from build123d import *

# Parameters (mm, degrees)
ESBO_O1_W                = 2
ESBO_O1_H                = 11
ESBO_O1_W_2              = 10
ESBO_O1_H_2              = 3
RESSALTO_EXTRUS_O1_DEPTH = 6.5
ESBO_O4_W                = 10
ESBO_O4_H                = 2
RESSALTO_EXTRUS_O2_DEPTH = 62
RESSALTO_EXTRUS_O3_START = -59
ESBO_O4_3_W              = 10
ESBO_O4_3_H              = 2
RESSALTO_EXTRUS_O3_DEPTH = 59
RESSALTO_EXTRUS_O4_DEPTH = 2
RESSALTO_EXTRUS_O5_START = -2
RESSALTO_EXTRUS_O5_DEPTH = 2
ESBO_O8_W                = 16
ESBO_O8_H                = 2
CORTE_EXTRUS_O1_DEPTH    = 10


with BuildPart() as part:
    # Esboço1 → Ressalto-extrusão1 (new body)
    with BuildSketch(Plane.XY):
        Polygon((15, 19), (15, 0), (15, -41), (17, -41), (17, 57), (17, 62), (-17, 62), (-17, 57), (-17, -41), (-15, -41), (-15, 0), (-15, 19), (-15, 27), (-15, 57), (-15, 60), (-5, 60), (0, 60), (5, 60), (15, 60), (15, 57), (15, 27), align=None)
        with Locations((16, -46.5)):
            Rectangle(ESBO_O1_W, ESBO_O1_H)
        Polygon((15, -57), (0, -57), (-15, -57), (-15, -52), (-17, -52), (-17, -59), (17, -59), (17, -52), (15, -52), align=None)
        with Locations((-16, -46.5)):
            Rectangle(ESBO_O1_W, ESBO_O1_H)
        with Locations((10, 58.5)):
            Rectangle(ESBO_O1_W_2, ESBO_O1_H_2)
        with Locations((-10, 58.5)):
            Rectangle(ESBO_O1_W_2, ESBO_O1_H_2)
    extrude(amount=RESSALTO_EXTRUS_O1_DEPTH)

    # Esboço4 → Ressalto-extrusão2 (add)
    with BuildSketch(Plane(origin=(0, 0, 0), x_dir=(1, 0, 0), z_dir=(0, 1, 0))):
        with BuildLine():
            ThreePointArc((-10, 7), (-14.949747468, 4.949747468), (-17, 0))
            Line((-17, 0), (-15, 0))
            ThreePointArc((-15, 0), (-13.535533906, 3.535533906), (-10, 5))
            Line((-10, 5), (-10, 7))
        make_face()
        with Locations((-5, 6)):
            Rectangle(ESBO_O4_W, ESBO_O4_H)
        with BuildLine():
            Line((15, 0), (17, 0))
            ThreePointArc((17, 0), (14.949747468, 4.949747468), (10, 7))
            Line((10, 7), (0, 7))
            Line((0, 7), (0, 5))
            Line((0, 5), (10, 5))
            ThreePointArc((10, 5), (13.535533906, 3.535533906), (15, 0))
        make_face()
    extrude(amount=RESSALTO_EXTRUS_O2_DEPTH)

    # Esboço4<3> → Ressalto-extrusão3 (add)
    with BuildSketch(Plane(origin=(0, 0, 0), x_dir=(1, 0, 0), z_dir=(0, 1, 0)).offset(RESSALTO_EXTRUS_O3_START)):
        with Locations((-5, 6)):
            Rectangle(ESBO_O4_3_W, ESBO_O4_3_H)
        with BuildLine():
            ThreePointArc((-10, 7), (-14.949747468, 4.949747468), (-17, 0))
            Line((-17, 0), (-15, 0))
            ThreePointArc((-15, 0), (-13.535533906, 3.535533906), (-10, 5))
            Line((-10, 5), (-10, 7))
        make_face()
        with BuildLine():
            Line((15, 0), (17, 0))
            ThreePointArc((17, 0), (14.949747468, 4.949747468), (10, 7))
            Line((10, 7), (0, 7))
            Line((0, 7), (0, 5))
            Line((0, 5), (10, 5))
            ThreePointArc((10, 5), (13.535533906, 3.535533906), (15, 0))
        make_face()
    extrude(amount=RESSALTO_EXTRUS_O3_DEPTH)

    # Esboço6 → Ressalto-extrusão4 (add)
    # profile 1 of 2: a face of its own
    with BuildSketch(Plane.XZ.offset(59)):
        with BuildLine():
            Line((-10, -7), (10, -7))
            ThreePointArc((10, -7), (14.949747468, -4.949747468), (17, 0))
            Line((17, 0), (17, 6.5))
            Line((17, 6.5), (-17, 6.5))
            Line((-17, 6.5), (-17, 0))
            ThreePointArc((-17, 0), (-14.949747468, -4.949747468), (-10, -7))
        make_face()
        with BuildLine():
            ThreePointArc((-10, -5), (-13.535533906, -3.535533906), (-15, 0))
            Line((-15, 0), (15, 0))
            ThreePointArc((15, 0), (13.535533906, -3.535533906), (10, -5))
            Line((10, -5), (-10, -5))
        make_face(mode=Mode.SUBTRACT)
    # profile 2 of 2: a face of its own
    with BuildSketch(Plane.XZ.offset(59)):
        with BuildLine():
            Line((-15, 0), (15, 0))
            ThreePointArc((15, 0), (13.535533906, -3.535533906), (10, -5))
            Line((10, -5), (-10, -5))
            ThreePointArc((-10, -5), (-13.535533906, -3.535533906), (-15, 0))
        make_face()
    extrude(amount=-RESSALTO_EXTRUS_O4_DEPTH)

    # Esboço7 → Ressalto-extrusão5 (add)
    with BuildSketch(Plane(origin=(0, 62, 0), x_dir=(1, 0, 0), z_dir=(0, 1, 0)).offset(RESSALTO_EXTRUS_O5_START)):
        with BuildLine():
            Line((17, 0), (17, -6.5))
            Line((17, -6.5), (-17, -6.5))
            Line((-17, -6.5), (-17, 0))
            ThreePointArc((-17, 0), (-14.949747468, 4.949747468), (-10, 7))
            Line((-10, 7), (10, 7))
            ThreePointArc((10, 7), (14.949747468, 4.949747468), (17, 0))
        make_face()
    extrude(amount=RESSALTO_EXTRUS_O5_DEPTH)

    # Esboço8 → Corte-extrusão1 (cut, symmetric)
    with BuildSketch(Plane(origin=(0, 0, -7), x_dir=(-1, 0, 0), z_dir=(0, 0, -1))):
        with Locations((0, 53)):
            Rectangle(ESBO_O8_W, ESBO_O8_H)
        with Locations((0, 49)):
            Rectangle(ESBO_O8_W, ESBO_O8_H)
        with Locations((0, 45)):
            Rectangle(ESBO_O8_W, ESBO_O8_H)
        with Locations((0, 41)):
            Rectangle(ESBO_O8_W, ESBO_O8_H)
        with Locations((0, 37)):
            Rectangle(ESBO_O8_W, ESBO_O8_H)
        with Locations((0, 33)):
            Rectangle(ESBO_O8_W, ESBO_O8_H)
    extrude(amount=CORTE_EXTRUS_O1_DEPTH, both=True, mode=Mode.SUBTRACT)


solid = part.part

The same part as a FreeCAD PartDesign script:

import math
import FreeCAD as App
import Part
import Sketcher

V = App.Vector
Q = App.Units.Quantity

doc = App.newDocument("Part")
body = doc.addObject("PartDesign::Body", "Body")

# Sketch on XY plane
sketch1 = body.newObject("Sketcher::SketchObject", "Sketch")
sketch1.AttachmentSupport = (doc.getObject("XY_Plane"), [""])
sketch1.MapMode = "FlatFace"
sketch1.addGeometry(Part.LineSegment(V(17, 62, 0), V(-17, 62, 0)), False)
sketch1.addGeometry(Part.LineSegment(V(-17, 62, 0), V(-17, -59, 0)), False)
sketch1.addGeometry(Part.LineSegment(V(-17, -59, 0), V(17, -59, 0)), False)
sketch1.addGeometry(Part.LineSegment(V(17, -59, 0), V(17, 62, 0)), False)
sketch1.addGeometry(Part.LineSegment(V(-5, 60, 0), V(5, 60, 0)), False)
sketch1.addGeometry(Part.LineSegment(V(5, 60, 0), V(5, 57, 0)), False)
sketch1.addGeometry(Part.LineSegment(V(5, 57, 0), V(15, 57, 0)), False)
sketch1.addGeometry(Part.LineSegment(V(15, 57, 0), V(15, -57, 0)), False)
sketch1.addGeometry(Part.LineSegment(V(15, -57, 0), V(-15, -57, 0)), False)
sketch1.addGeometry(Part.LineSegment(V(-15, -57, 0), V(-15, 57, 0)), False)
sketch1.addGeometry(Part.LineSegment(V(-15, 57, 0), V(-5, 57, 0)), False)
sketch1.addGeometry(Part.LineSegment(V(-5, 57, 0), V(-5, 60, 0)), False)
sketch1.addConstraint(Sketcher.Constraint("Coincident", 0, 2, 1, 1))
sketch1.addConstraint(Sketcher.Constraint("Coincident", 1, 2, 2, 1))
sketch1.addConstraint(Sketcher.Constraint("Coincident", 2, 2, 3, 1))
sketch1.addConstraint(Sketcher.Constraint("Coincident", 3, 2, 0, 1))
sketch1.addConstraint(Sketcher.Constraint("Coincident", 4, 2, 5, 1))
sketch1.addConstraint(Sketcher.Constraint("Coincident", 5, 2, 6, 1))
sketch1.addConstraint(Sketcher.Constraint("Coincident", 6, 2, 7, 1))
sketch1.addConstraint(Sketcher.Constraint("Coincident", 7, 2, 8, 1))
sketch1.addConstraint(Sketcher.Constraint("Coincident", 8, 2, 9, 1))
sketch1.addConstraint(Sketcher.Constraint("Coincident", 9, 2, 10, 1))
sketch1.addConstraint(Sketcher.Constraint("Coincident", 10, 2, 11, 1))
sketch1.addConstraint(Sketcher.Constraint("Coincident", 11, 2, 4, 1))
sketch1.addConstraint(Sketcher.Constraint("Horizontal", 0))
sketch1.addConstraint(Sketcher.Constraint("Vertical", 1))
sketch1.addConstraint(Sketcher.Constraint("Horizontal", 2))
sketch1.addConstraint(Sketcher.Constraint("Vertical", 3))
sketch1.addConstraint(Sketcher.Constraint("Horizontal", 4))
sketch1.addConstraint(Sketcher.Constraint("Vertical", 5))
sketch1.addConstraint(Sketcher.Constraint("Horizontal", 6))
sketch1.addConstraint(Sketcher.Constraint("Vertical", 7))
sketch1.addConstraint(Sketcher.Constraint("Horizontal", 8))
sketch1.addConstraint(Sketcher.Constraint("Vertical", 9))
sketch1.addConstraint(Sketcher.Constraint("Horizontal", 10))
sketch1.addConstraint(Sketcher.Constraint("Vertical", 11))
sketch1.addConstraint(Sketcher.Constraint("Symmetric", 6, 2, 8, 2, -1, 1))
sketch1.addConstraint(Sketcher.Constraint("Symmetric", 5, 2, 10, 2, -2))
sketch1.addConstraint(Sketcher.Constraint("Equal", 4, 6))
sketch1.addConstraint(Sketcher.Constraint("DistanceX", 0, 2, 0, 1, Q("34 mm")))
sketch1.addConstraint(Sketcher.Constraint("DistanceX", 4, 1, 4, 2, Q("10 mm")))
sketch1.addConstraint(Sketcher.Constraint("DistanceY", 1, 2, 1, 1, Q("121 mm")))
sketch1.addConstraint(Sketcher.Constraint("DistanceY", 5, 2, 5, 1, Q("3 mm")))
sketch1.addConstraint(Sketcher.Constraint("DistanceY", 7, 2, 7, 1, Q("114 mm")))
sketch1.addConstraint(Sketcher.Constraint("DistanceX", 0, 2, -1, 1, Q("17 mm")))
sketch1.addConstraint(Sketcher.Constraint("DistanceY", -1, 1, 0, 2, Q("62 mm")))
pad1 = body.newObject("PartDesign::Pad", "Pad")
pad1.Profile = sketch1
pad1.Length = 6.5

# Sketch on XZ plane
sketch2 = body.newObject("Sketcher::SketchObject", "Sketch001")
sketch2.AttachmentSupport = (doc.getObject("XZ_Plane"), [""])
sketch2.MapMode = "FlatFace"
sketch2.addGeometry(Part.ArcOfCircle(Part.Circle(V(-10, 0, 0), V(0, 0, 1), 7), math.radians(-180), math.radians(-90)), False)
sketch2.addGeometry(Part.LineSegment(V(-17, 0, 0), V(-15, 0, 0)), False)
sketch2.addGeometry(Part.ArcOfCircle(Part.Circle(V(-10, 0, 0), V(0, 0, 1), 5), math.radians(180), math.radians(270)), False)
sketch2.addGeometry(Part.LineSegment(V(-10, -5, 0), V(10, -5, 0)), False)
sketch2.addGeometry(Part.ArcOfCircle(Part.Circle(V(10, 0, 0), V(0, 0, 1), 5), math.radians(-90), math.radians(0)), False)
sketch2.addGeometry(Part.LineSegment(V(15, 0, 0), V(17, 0, 0)), False)
sketch2.addGeometry(Part.ArcOfCircle(Part.Circle(V(10, 0, 0), V(0, 0, 1), 7), math.radians(-90), math.radians(0)), False)
sketch2.addGeometry(Part.LineSegment(V(10, -7, 0), V(-10, -7, 0)), False)
sketch2.addConstraint(Sketcher.Constraint("Coincident", 0, 1, 1, 1))
sketch2.addConstraint(Sketcher.Constraint("Coincident", 1, 2, 2, 1))
sketch2.addConstraint(Sketcher.Constraint("Tangent", 2, 2, 3, 1))
sketch2.addConstraint(Sketcher.Constraint("Tangent", 3, 2, 4, 1))
sketch2.addConstraint(Sketcher.Constraint("Coincident", 4, 2, 5, 1))
sketch2.addConstraint(Sketcher.Constraint("Coincident", 5, 2, 6, 2))
sketch2.addConstraint(Sketcher.Constraint("Tangent", 6, 1, 7, 1))
sketch2.addConstraint(Sketcher.Constraint("Tangent", 7, 2, 0, 2))
sketch2.addConstraint(Sketcher.Constraint("Horizontal", 1))
sketch2.addConstraint(Sketcher.Constraint("Horizontal", 3))
sketch2.addConstraint(Sketcher.Constraint("Horizontal", 5))
sketch2.addConstraint(Sketcher.Constraint("Horizontal", 7))
sketch2.addConstraint(Sketcher.Constraint("Coincident", 2, 3, 0, 3))
sketch2.addConstraint(Sketcher.Constraint("Coincident", 6, 3, 4, 3))
sketch2.addConstraint(Sketcher.Constraint("Equal", 2, 4))
sketch2.addConstraint(Sketcher.Constraint("Symmetric", 0, 3, 4, 3, -1, 1))
sketch2.addConstraint(Sketcher.Constraint("PointOnObject", 0, 1, -1))
sketch2.addConstraint(Sketcher.Constraint("PointOnObject", 4, 2, -1))
sketch2.addConstraint(Sketcher.Constraint("Radius", 0, Q("7 mm")))
sketch2.addConstraint(Sketcher.Constraint("Radius", 2, Q("5 mm")))
sketch2.addConstraint(Sketcher.Constraint("DistanceX", 3, 1, 3, 2, Q("20 mm")))
pad2 = body.newObject("PartDesign::Pad", "Pad001")
pad2.Profile = sketch2
pad2.Length = 62
pad2.Reversed = True

# Sketch on XZ plane
sketch3 = body.newObject("Sketcher::SketchObject", "Sketch002")
sketch3.AttachmentSupport = (doc.getObject("XZ_Plane"), [""])
sketch3.MapMode = "FlatFace"
sketch3.AttachmentOffset = App.Placement(V(0, 0, 59), App.Rotation())
sketch3.addGeometry(Part.LineSegment(V(-10, -5, 0), V(10, -5, 0)), False)
sketch3.addGeometry(Part.ArcOfCircle(Part.Circle(V(10, 0, 0), V(0, 0, 1), 5), math.radians(-90), math.radians(0)), False)
sketch3.addGeometry(Part.LineSegment(V(15, 0, 0), V(17, 0, 0)), False)
sketch3.addGeometry(Part.ArcOfCircle(Part.Circle(V(10, 0, 0), V(0, 0, 1), 7), math.radians(-90), math.radians(0)), False)
sketch3.addGeometry(Part.LineSegment(V(10, -7, 0), V(-10, -7, 0)), False)
sketch3.addGeometry(Part.ArcOfCircle(Part.Circle(V(-10, 0, 0), V(0, 0, 1), 7), math.radians(-180), math.radians(-90)), False)
sketch3.addGeometry(Part.LineSegment(V(-17, 0, 0), V(-15, 0, 0)), False)
sketch3.addGeometry(Part.ArcOfCircle(Part.Circle(V(-10, 0, 0), V(0, 0, 1), 5), math.radians(180), math.radians(270)), False)
sketch3.addConstraint(Sketcher.Constraint("Tangent", 0, 2, 1, 1))
sketch3.addConstraint(Sketcher.Constraint("Coincident", 1, 2, 2, 1))
sketch3.addConstraint(Sketcher.Constraint("Coincident", 2, 2, 3, 2))
sketch3.addConstraint(Sketcher.Constraint("Tangent", 3, 1, 4, 1))
sketch3.addConstraint(Sketcher.Constraint("Tangent", 4, 2, 5, 2))
sketch3.addConstraint(Sketcher.Constraint("Coincident", 5, 1, 6, 1))
sketch3.addConstraint(Sketcher.Constraint("Coincident", 6, 2, 7, 1))
sketch3.addConstraint(Sketcher.Constraint("Tangent", 7, 2, 0, 1))
sketch3.addConstraint(Sketcher.Constraint("Horizontal", 0))
sketch3.addConstraint(Sketcher.Constraint("Horizontal", 2))
sketch3.addConstraint(Sketcher.Constraint("Horizontal", 4))
sketch3.addConstraint(Sketcher.Constraint("Horizontal", 6))
sketch3.addConstraint(Sketcher.Constraint("Coincident", 3, 3, 1, 3))
sketch3.addConstraint(Sketcher.Constraint("Coincident", 7, 3, 5, 3))
sketch3.addConstraint(Sketcher.Constraint("Equal", 3, 5))
sketch3.addConstraint(Sketcher.Constraint("Symmetric", 1, 3, 5, 3, -1, 1))
sketch3.addConstraint(Sketcher.Constraint("PointOnObject", 1, 2, -1))
sketch3.addConstraint(Sketcher.Constraint("PointOnObject", 5, 1, -1))
sketch3.addConstraint(Sketcher.Constraint("Radius", 1, Q("5 mm")))
sketch3.addConstraint(Sketcher.Constraint("Radius", 3, Q("7 mm")))
sketch3.addConstraint(Sketcher.Constraint("DistanceX", 0, 1, 0, 2, Q("20 mm")))
pad3 = body.newObject("PartDesign::Pad", "Pad002")
pad3.Profile = sketch3
pad3.Length = 59
pad3.Reversed = True

# Sketch on XZ plane
sketch4 = body.newObject("Sketcher::SketchObject", "Sketch003")
sketch4.AttachmentSupport = (doc.getObject("XZ_Plane"), [""])
sketch4.MapMode = "FlatFace"
sketch4.AttachmentOffset = App.Placement(V(0, 0, 59), App.Rotation())
sketch4.addGeometry(Part.LineSegment(V(-10, -7, 0), V(10, -7, 0)), False)
sketch4.addGeometry(Part.ArcOfCircle(Part.Circle(V(10, 0, 0), V(0, 0, 1), 7), math.radians(-90), math.radians(0)), False)
sketch4.addGeometry(Part.LineSegment(V(17, 0, 0), V(17, 6, 0)), False)
sketch4.addGeometry(Part.LineSegment(V(17, 6, 0), V(-17, 6, 0)), False)
sketch4.addGeometry(Part.LineSegment(V(-17, 6, 0), V(-17, 0, 0)), False)
sketch4.addGeometry(Part.ArcOfCircle(Part.Circle(V(-10, 0, 0), V(0, 0, 1), 7), math.radians(-180), math.radians(-90)), False)
sketch4.addConstraint(Sketcher.Constraint("Tangent", 0, 2, 1, 1))
sketch4.addConstraint(Sketcher.Constraint("Tangent", 1, 2, 2, 1))
sketch4.addConstraint(Sketcher.Constraint("Coincident", 2, 2, 3, 1))
sketch4.addConstraint(Sketcher.Constraint("Coincident", 3, 2, 4, 1))
sketch4.addConstraint(Sketcher.Constraint("Tangent", 4, 2, 5, 1))
sketch4.addConstraint(Sketcher.Constraint("Tangent", 5, 2, 0, 1))
sketch4.addConstraint(Sketcher.Constraint("Horizontal", 0))
sketch4.addConstraint(Sketcher.Constraint("Vertical", 2))
sketch4.addConstraint(Sketcher.Constraint("Horizontal", 3))
sketch4.addConstraint(Sketcher.Constraint("Vertical", 4))
sketch4.addConstraint(Sketcher.Constraint("Equal", 1, 5))
sketch4.addConstraint(Sketcher.Constraint("Symmetric", 1, 3, 5, 3, -1, 1))
sketch4.addConstraint(Sketcher.Constraint("Radius", 1, Q("7 mm")))
sketch4.addConstraint(Sketcher.Constraint("DistanceX", 0, 1, 0, 2, Q("20 mm")))
sketch4.addConstraint(Sketcher.Constraint("DistanceY", 2, 1, 2, 2, Q("6.5 mm")))
pad4 = body.newObject("PartDesign::Pad", "Pad003")
pad4.Profile = sketch4
pad4.Length = 2
pad4.Reversed = True

# Sketch on XZ plane
sketch5 = body.newObject("Sketcher::SketchObject", "Sketch004")
sketch5.AttachmentSupport = (doc.getObject("XZ_Plane"), [""])
sketch5.MapMode = "FlatFace"
sketch5.AttachmentOffset = App.Placement(V(0, 0, -60), App.Rotation())
sketch5.addGeometry(Part.LineSegment(V(17, 6, 0), V(17, 0, 0)), False)
sketch5.addGeometry(Part.ArcOfCircle(Part.Circle(V(10, 0, 0), V(0, 0, 1), 7), math.radians(-90), math.radians(0)), False)
sketch5.addGeometry(Part.LineSegment(V(10, -7, 0), V(-10, -7, 0)), False)
sketch5.addGeometry(Part.ArcOfCircle(Part.Circle(V(-10, 0, 0), V(0, 0, 1), 7), math.radians(-180), math.radians(-90)), False)
sketch5.addGeometry(Part.LineSegment(V(-17, 0, 0), V(-17, 6, 0)), False)
sketch5.addGeometry(Part.LineSegment(V(-17, 6, 0), V(17, 6, 0)), False)
sketch5.addConstraint(Sketcher.Constraint("Tangent", 0, 2, 1, 2))
sketch5.addConstraint(Sketcher.Constraint("Tangent", 1, 1, 2, 1))
sketch5.addConstraint(Sketcher.Constraint("Tangent", 2, 2, 3, 2))
sketch5.addConstraint(Sketcher.Constraint("Tangent", 3, 1, 4, 1))
sketch5.addConstraint(Sketcher.Constraint("Coincident", 4, 2, 5, 1))
sketch5.addConstraint(Sketcher.Constraint("Coincident", 5, 2, 0, 1))
sketch5.addConstraint(Sketcher.Constraint("Vertical", 0))
sketch5.addConstraint(Sketcher.Constraint("Horizontal", 2))
sketch5.addConstraint(Sketcher.Constraint("Vertical", 4))
sketch5.addConstraint(Sketcher.Constraint("Horizontal", 5))
sketch5.addConstraint(Sketcher.Constraint("Equal", 1, 3))
sketch5.addConstraint(Sketcher.Constraint("Symmetric", 1, 3, 3, 3, -1, 1))
sketch5.addConstraint(Sketcher.Constraint("Radius", 1, Q("7 mm")))
sketch5.addConstraint(Sketcher.Constraint("DistanceX", 2, 2, 2, 1, Q("20 mm")))
sketch5.addConstraint(Sketcher.Constraint("DistanceY", 0, 2, 0, 1, Q("6.5 mm")))
pad5 = body.newObject("PartDesign::Pad", "Pad004")
pad5.Profile = sketch5
pad5.Length = 2
pad5.Reversed = True

# Sketch on XY plane
sketch6 = body.newObject("Sketcher::SketchObject", "Sketch005")
sketch6.AttachmentSupport = (doc.getObject("XY_Plane"), [""])
sketch6.MapMode = "FlatFace"
sketch6.AttachmentOffset = App.Placement(V(0, 0, -7), App.Rotation())
sketch6.addGeometry(Part.LineSegment(V(8, 54, 0), V(8, 52, 0)), False)
sketch6.addGeometry(Part.LineSegment(V(8, 52, 0), V(-8, 52, 0)), False)
sketch6.addGeometry(Part.LineSegment(V(-8, 52, 0), V(-8, 54, 0)), False)
sketch6.addGeometry(Part.LineSegment(V(-8, 54, 0), V(8, 54, 0)), False)
sketch6.addGeometry(Part.LineSegment(V(8, 50, 0), V(8, 48, 0)), False)
sketch6.addGeometry(Part.LineSegment(V(8, 48, 0), V(-8, 48, 0)), False)
sketch6.addGeometry(Part.LineSegment(V(-8, 48, 0), V(-8, 50, 0)), False)
sketch6.addGeometry(Part.LineSegment(V(-8, 50, 0), V(8, 50, 0)), False)
sketch6.addGeometry(Part.LineSegment(V(8, 46, 0), V(8, 44, 0)), False)
sketch6.addGeometry(Part.LineSegment(V(8, 44, 0), V(-8, 44, 0)), False)
sketch6.addGeometry(Part.LineSegment(V(-8, 44, 0), V(-8, 46, 0)), False)
sketch6.addGeometry(Part.LineSegment(V(-8, 46, 0), V(8, 46, 0)), False)
sketch6.addGeometry(Part.LineSegment(V(8, 42, 0), V(8, 40, 0)), False)
sketch6.addGeometry(Part.LineSegment(V(8, 40, 0), V(-8, 40, 0)), False)
sketch6.addGeometry(Part.LineSegment(V(-8, 40, 0), V(-8, 42, 0)), False)
sketch6.addGeometry(Part.LineSegment(V(-8, 42, 0), V(8, 42, 0)), False)
sketch6.addGeometry(Part.LineSegment(V(8, 38, 0), V(8, 36, 0)), False)
sketch6.addGeometry(Part.LineSegment(V(8, 36, 0), V(-8, 36, 0)), False)
sketch6.addGeometry(Part.LineSegment(V(-8, 36, 0), V(-8, 38, 0)), False)
sketch6.addGeometry(Part.LineSegment(V(-8, 38, 0), V(8, 38, 0)), False)
sketch6.addGeometry(Part.LineSegment(V(8, 34, 0), V(8, 32, 0)), False)
sketch6.addGeometry(Part.LineSegment(V(8, 32, 0), V(-8, 32, 0)), False)
sketch6.addGeometry(Part.LineSegment(V(-8, 32, 0), V(-8, 34, 0)), False)
sketch6.addGeometry(Part.LineSegment(V(-8, 34, 0), V(8, 34, 0)), False)
sketch6.addConstraint(Sketcher.Constraint("Coincident", 0, 2, 1, 1))
sketch6.addConstraint(Sketcher.Constraint("Coincident", 1, 2, 2, 1))
sketch6.addConstraint(Sketcher.Constraint("Coincident", 2, 2, 3, 1))
sketch6.addConstraint(Sketcher.Constraint("Coincident", 3, 2, 0, 1))
sketch6.addConstraint(Sketcher.Constraint("Coincident", 4, 2, 5, 1))
sketch6.addConstraint(Sketcher.Constraint("Coincident", 5, 2, 6, 1))
sketch6.addConstraint(Sketcher.Constraint("Coincident", 6, 2, 7, 1))
sketch6.addConstraint(Sketcher.Constraint("Coincident", 7, 2, 4, 1))
sketch6.addConstraint(Sketcher.Constraint("Coincident", 8, 2, 9, 1))
sketch6.addConstraint(Sketcher.Constraint("Coincident", 9, 2, 10, 1))
sketch6.addConstraint(Sketcher.Constraint("Coincident", 10, 2, 11, 1))
sketch6.addConstraint(Sketcher.Constraint("Coincident", 11, 2, 8, 1))
sketch6.addConstraint(Sketcher.Constraint("Coincident", 12, 2, 13, 1))
sketch6.addConstraint(Sketcher.Constraint("Coincident", 13, 2, 14, 1))
sketch6.addConstraint(Sketcher.Constraint("Coincident", 14, 2, 15, 1))
sketch6.addConstraint(Sketcher.Constraint("Coincident", 15, 2, 12, 1))
sketch6.addConstraint(Sketcher.Constraint("Coincident", 16, 2, 17, 1))
sketch6.addConstraint(Sketcher.Constraint("Coincident", 17, 2, 18, 1))
sketch6.addConstraint(Sketcher.Constraint("Coincident", 18, 2, 19, 1))
sketch6.addConstraint(Sketcher.Constraint("Coincident", 19, 2, 16, 1))
sketch6.addConstraint(Sketcher.Constraint("Coincident", 20, 2, 21, 1))
sketch6.addConstraint(Sketcher.Constraint("Coincident", 21, 2, 22, 1))
sketch6.addConstraint(Sketcher.Constraint("Coincident", 22, 2, 23, 1))
sketch6.addConstraint(Sketcher.Constraint("Coincident", 23, 2, 20, 1))
sketch6.addConstraint(Sketcher.Constraint("Vertical", 0))
sketch6.addConstraint(Sketcher.Constraint("Horizontal", 1))
sketch6.addConstraint(Sketcher.Constraint("Vertical", 2))
sketch6.addConstraint(Sketcher.Constraint("Horizontal", 3))
sketch6.addConstraint(Sketcher.Constraint("Vertical", 4))
sketch6.addConstraint(Sketcher.Constraint("Horizontal", 5))
sketch6.addConstraint(Sketcher.Constraint("Vertical", 6))
sketch6.addConstraint(Sketcher.Constraint("Horizontal", 7))
sketch6.addConstraint(Sketcher.Constraint("Vertical", 8))
sketch6.addConstraint(Sketcher.Constraint("Horizontal", 9))
sketch6.addConstraint(Sketcher.Constraint("Vertical", 10))
sketch6.addConstraint(Sketcher.Constraint("Horizontal", 11))
sketch6.addConstraint(Sketcher.Constraint("Vertical", 12))
sketch6.addConstraint(Sketcher.Constraint("Horizontal", 13))
sketch6.addConstraint(Sketcher.Constraint("Vertical", 14))
sketch6.addConstraint(Sketcher.Constraint("Horizontal", 15))
sketch6.addConstraint(Sketcher.Constraint("Vertical", 16))
sketch6.addConstraint(Sketcher.Constraint("Horizontal", 17))
sketch6.addConstraint(Sketcher.Constraint("Vertical", 18))
sketch6.addConstraint(Sketcher.Constraint("Horizontal", 19))
sketch6.addConstraint(Sketcher.Constraint("Vertical", 20))
sketch6.addConstraint(Sketcher.Constraint("Horizontal", 21))
sketch6.addConstraint(Sketcher.Constraint("Vertical", 22))
sketch6.addConstraint(Sketcher.Constraint("Horizontal", 23))
sketch6.addConstraint(Sketcher.Constraint("Vertical", 3, 2, 4, 2))
sketch6.addConstraint(Sketcher.Constraint("Vertical", 2, 2, 5, 2))
sketch6.addConstraint(Sketcher.Constraint("Vertical", 7, 2, 8, 2))
sketch6.addConstraint(Sketcher.Constraint("Vertical", 6, 2, 9, 2))
sketch6.addConstraint(Sketcher.Constraint("Vertical", 11, 2, 12, 2))
sketch6.addConstraint(Sketcher.Constraint("Vertical", 10, 2, 13, 2))
sketch6.addConstraint(Sketcher.Constraint("Vertical", 15, 2, 16, 2))
sketch6.addConstraint(Sketcher.Constraint("Vertical", 14, 2, 17, 2))
sketch6.addConstraint(Sketcher.Constraint("Vertical", 19, 2, 20, 2))
sketch6.addConstraint(Sketcher.Constraint("Vertical", 18, 2, 21, 2))
sketch6.addConstraint(Sketcher.Constraint("Equal", 2, 4))
sketch6.addConstraint(Sketcher.Constraint("Equal", 6, 8))
sketch6.addConstraint(Sketcher.Constraint("Equal", 10, 12))
sketch6.addConstraint(Sketcher.Constraint("Equal", 14, 16))
sketch6.addConstraint(Sketcher.Constraint("Equal", 18, 20))
sketch6.addConstraint(Sketcher.Constraint("DistanceX", 1, 2, 1, 1, Q("16 mm")))
sketch6.addConstraint(Sketcher.Constraint("DistanceY", 0, 2, 0, 1, Q("2 mm")))
sketch6.addConstraint(Sketcher.Constraint("DistanceX", -1, 1, 0, 2, Q("8 mm")))
sketch6.addConstraint(Sketcher.Constraint("DistanceY", -1, 1, 0, 2, Q("52 mm")))
sketch6.addConstraint(Sketcher.Constraint("DistanceY", -1, 1, 4, 2, Q("48 mm")))
sketch6.addConstraint(Sketcher.Constraint("DistanceY", -1, 1, 8, 2, Q("44 mm")))
sketch6.addConstraint(Sketcher.Constraint("DistanceY", -1, 1, 12, 2, Q("40 mm")))
sketch6.addConstraint(Sketcher.Constraint("DistanceY", -1, 1, 16, 2, Q("36 mm")))
sketch6.addConstraint(Sketcher.Constraint("DistanceY", -1, 1, 20, 2, Q("32 mm")))
pocket1 = body.newObject("PartDesign::Pocket", "Pocket")
pocket1.Profile = sketch6
pocket1.Length = 20
pocket1.Midplane = True

doc.recompute()
